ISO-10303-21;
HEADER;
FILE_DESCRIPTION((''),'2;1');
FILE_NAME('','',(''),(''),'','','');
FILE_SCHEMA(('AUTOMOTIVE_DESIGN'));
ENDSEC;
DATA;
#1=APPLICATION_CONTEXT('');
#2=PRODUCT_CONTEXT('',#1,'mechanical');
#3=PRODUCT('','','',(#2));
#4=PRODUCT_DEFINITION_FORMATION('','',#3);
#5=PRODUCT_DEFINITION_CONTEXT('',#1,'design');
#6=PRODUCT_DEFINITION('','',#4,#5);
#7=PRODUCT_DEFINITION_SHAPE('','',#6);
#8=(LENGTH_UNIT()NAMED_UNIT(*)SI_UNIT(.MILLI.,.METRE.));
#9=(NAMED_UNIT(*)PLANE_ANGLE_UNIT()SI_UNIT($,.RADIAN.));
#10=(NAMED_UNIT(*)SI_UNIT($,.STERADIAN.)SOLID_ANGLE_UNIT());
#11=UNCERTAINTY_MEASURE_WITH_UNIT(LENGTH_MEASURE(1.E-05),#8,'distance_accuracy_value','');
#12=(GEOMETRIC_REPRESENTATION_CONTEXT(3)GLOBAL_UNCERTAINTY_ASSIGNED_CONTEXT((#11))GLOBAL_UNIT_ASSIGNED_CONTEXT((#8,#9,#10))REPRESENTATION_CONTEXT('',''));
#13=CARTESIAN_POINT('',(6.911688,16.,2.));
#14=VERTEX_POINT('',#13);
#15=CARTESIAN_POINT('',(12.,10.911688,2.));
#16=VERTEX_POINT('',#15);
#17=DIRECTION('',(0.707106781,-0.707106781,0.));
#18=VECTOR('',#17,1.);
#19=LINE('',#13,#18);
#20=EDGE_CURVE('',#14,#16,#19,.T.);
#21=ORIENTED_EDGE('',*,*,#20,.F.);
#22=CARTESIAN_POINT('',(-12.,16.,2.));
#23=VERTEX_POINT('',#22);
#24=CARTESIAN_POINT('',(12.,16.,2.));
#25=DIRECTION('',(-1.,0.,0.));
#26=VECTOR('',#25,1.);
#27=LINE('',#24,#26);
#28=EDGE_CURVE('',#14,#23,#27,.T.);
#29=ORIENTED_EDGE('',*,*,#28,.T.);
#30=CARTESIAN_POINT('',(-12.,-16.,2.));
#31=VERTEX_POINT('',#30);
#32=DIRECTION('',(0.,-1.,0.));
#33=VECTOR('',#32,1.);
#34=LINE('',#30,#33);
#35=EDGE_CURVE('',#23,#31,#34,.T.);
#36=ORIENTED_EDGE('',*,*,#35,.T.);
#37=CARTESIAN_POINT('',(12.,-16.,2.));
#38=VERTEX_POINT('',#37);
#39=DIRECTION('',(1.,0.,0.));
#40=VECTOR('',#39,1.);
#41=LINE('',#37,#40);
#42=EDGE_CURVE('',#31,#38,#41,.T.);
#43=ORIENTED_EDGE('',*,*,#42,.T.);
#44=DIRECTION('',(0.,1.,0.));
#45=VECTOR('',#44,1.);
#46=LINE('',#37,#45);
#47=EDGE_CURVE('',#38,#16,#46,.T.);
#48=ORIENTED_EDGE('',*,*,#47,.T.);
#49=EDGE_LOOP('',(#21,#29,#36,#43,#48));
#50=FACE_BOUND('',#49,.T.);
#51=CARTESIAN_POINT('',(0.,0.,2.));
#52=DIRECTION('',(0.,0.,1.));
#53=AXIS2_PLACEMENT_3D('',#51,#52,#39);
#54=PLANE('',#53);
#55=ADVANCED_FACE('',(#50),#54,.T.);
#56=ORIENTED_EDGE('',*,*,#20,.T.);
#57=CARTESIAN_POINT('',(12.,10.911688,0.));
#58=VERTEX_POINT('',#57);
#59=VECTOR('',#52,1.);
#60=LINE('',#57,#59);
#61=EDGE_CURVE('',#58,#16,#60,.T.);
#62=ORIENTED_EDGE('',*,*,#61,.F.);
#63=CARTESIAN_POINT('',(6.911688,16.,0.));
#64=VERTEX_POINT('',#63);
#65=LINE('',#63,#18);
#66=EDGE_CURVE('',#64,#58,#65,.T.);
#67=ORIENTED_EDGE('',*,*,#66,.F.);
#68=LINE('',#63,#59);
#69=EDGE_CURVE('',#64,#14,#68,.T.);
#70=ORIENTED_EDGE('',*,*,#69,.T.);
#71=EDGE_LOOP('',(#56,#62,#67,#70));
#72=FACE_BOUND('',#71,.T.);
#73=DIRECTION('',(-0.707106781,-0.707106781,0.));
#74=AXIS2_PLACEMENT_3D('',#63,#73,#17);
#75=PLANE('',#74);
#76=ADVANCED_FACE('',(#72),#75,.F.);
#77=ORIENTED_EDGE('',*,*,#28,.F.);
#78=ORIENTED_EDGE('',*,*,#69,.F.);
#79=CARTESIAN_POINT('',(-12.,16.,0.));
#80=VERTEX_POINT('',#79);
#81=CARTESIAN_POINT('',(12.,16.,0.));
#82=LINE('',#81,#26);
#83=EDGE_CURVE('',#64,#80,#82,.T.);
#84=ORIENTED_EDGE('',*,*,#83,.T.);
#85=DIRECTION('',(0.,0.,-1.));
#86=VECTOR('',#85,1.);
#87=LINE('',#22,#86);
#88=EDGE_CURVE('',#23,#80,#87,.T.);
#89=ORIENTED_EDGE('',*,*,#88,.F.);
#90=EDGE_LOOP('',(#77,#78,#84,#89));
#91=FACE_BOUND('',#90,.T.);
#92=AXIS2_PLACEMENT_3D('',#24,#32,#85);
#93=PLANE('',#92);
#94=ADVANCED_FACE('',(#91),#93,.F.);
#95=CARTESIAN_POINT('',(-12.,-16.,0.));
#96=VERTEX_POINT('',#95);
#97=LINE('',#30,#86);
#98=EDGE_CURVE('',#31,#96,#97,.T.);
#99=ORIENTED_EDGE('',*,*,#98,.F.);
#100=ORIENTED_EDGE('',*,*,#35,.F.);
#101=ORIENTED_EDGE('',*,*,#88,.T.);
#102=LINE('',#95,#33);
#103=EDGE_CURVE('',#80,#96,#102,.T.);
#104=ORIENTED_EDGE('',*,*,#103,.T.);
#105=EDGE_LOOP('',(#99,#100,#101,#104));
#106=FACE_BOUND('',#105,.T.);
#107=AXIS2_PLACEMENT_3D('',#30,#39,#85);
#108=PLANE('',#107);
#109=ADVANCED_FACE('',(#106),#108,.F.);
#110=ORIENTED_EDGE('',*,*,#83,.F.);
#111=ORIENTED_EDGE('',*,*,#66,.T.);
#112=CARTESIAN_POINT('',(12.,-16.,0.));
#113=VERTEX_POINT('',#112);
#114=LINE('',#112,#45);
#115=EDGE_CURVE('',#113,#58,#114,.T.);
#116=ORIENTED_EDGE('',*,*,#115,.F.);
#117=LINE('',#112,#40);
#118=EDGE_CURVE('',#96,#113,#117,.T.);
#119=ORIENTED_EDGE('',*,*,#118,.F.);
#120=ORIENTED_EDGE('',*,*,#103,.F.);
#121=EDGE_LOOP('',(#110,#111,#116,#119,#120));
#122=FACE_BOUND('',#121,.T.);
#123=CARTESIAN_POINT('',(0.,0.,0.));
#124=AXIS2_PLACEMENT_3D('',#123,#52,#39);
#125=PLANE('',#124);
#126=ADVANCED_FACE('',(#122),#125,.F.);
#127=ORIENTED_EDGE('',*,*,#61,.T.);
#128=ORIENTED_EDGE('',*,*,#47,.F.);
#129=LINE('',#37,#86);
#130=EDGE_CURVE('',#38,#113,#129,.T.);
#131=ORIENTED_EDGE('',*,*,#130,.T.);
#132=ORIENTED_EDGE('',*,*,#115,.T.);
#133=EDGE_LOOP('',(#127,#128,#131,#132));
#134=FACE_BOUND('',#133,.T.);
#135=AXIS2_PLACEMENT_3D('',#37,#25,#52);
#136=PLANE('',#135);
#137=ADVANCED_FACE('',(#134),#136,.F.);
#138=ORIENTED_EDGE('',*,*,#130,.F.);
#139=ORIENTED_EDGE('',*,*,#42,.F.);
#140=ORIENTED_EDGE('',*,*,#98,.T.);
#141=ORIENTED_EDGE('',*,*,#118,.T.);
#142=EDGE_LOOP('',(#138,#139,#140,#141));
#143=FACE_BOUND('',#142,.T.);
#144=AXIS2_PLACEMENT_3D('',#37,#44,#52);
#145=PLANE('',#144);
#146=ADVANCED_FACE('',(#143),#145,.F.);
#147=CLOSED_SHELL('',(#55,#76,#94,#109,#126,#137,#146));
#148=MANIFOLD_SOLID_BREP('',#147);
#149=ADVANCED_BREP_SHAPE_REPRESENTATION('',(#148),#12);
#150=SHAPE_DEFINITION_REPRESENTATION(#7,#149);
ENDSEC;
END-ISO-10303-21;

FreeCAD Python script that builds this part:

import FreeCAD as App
import Part
import Sketcher

V = App.Vector

doc = App.newDocument("Part")
body = doc.addObject("PartDesign::Body", "Body")

# Sketch on XY plane
sketch1 = doc.addObject("Sketcher::SketchObject", "Sketch")
body.addObject(sketch1)
sketch1.AttachmentSupport = (doc.XY_Plane, [""])
sketch1.MapMode = "FlatFace"
sketch1.addGeometry(Part.LineSegment(V(-12, 16, 0), V(-12, -16, 0)), False)
sketch1.addGeometry(Part.LineSegment(V(-12, -16, 0), V(12, -16, 0)), False)
sketch1.addGeometry(Part.LineSegment(V(12, -16, 0), V(12, 16, 0)), False)
sketch1.addGeometry(Part.LineSegment(V(12, 16, 0), V(-12, 16, 0)), False)
sketch1.addConstraint(Sketcher.Constraint("Coincident", 0, 2, 1, 1))
sketch1.addConstraint(Sketcher.Constraint("Coincident", 1, 2, 2, 1))
sketch1.addConstraint(Sketcher.Constraint("Coincident", 2, 2, 3, 1))
sketch1.addConstraint(Sketcher.Constraint("Coincident", 3, 2, 0, 1))
sketch1.addConstraint(Sketcher.Constraint("Vertical", 0))
sketch1.addConstraint(Sketcher.Constraint("Horizontal", 1))
sketch1.addConstraint(Sketcher.Constraint("Vertical", 2))
sketch1.addConstraint(Sketcher.Constraint("Horizontal", 3))
sketch1.addConstraint(Sketcher.Constraint("Symmetric", 0, 2, 2, 2, -1, 1))
sketch1.addConstraint(Sketcher.Constraint("DistanceX", 1, 1, 1, 2, 24.0))
sketch1.addConstraint(Sketcher.Constraint("DistanceY", 0, 2, 0, 1, 32.0))
pad1 = doc.addObject("PartDesign::Pad", "Pad")
body.addObject(pad1)
pad1.Profile = sketch1
pad1.Length = 2

# Sketch on XY plane
sketch2 = doc.addObject("Sketcher::SketchObject", "Sketch001")
body.addObject(sketch2)
sketch2.AttachmentSupport = (doc.XY_Plane, [""])
sketch2.MapMode = "FlatFace"
sketch2.AttachmentOffset = App.Placement(V(0, 0, 2), App.Rotation())
sketch2.addGeometry(Part.LineSegment(V(7, 16, 0), V(12, 11, 0)), False)
sketch2.addGeometry(Part.LineSegment(V(12, 11, 0), V(12, 16, 0)), False)
sketch2.addGeometry(Part.LineSegment(V(12, 16, 0), V(7, 16, 0)), False)
sketch2.addConstraint(Sketcher.Constraint("Coincident", 0, 2, 1, 1))
sketch2.addConstraint(Sketcher.Constraint("Coincident", 1, 2, 2, 1))
sketch2.addConstraint(Sketcher.Constraint("Coincident", 2, 2, 0, 1))
sketch2.addConstraint(Sketcher.Constraint("Vertical", 1))
sketch2.addConstraint(Sketcher.Constraint("Horizontal", 2))
sketch2.addConstraint(Sketcher.Constraint("Equal", 2, 1))
sketch2.addConstraint(Sketcher.Constraint("DistanceX", -1, 1, 0, 2, 12.0))
sketch2.addConstraint(Sketcher.Constraint("DistanceY", -1, 1, 1, 2, 16.0))
sketch2.addConstraint(Sketcher.Constraint("DistanceX", 2, 2, 2, 1, 5.088312))
pocket1 = doc.addObject("PartDesign::Pocket", "Pocket")
body.addObject(pocket1)
pocket1.Profile = sketch2
pocket1.Length = 2

doc.recompute()
